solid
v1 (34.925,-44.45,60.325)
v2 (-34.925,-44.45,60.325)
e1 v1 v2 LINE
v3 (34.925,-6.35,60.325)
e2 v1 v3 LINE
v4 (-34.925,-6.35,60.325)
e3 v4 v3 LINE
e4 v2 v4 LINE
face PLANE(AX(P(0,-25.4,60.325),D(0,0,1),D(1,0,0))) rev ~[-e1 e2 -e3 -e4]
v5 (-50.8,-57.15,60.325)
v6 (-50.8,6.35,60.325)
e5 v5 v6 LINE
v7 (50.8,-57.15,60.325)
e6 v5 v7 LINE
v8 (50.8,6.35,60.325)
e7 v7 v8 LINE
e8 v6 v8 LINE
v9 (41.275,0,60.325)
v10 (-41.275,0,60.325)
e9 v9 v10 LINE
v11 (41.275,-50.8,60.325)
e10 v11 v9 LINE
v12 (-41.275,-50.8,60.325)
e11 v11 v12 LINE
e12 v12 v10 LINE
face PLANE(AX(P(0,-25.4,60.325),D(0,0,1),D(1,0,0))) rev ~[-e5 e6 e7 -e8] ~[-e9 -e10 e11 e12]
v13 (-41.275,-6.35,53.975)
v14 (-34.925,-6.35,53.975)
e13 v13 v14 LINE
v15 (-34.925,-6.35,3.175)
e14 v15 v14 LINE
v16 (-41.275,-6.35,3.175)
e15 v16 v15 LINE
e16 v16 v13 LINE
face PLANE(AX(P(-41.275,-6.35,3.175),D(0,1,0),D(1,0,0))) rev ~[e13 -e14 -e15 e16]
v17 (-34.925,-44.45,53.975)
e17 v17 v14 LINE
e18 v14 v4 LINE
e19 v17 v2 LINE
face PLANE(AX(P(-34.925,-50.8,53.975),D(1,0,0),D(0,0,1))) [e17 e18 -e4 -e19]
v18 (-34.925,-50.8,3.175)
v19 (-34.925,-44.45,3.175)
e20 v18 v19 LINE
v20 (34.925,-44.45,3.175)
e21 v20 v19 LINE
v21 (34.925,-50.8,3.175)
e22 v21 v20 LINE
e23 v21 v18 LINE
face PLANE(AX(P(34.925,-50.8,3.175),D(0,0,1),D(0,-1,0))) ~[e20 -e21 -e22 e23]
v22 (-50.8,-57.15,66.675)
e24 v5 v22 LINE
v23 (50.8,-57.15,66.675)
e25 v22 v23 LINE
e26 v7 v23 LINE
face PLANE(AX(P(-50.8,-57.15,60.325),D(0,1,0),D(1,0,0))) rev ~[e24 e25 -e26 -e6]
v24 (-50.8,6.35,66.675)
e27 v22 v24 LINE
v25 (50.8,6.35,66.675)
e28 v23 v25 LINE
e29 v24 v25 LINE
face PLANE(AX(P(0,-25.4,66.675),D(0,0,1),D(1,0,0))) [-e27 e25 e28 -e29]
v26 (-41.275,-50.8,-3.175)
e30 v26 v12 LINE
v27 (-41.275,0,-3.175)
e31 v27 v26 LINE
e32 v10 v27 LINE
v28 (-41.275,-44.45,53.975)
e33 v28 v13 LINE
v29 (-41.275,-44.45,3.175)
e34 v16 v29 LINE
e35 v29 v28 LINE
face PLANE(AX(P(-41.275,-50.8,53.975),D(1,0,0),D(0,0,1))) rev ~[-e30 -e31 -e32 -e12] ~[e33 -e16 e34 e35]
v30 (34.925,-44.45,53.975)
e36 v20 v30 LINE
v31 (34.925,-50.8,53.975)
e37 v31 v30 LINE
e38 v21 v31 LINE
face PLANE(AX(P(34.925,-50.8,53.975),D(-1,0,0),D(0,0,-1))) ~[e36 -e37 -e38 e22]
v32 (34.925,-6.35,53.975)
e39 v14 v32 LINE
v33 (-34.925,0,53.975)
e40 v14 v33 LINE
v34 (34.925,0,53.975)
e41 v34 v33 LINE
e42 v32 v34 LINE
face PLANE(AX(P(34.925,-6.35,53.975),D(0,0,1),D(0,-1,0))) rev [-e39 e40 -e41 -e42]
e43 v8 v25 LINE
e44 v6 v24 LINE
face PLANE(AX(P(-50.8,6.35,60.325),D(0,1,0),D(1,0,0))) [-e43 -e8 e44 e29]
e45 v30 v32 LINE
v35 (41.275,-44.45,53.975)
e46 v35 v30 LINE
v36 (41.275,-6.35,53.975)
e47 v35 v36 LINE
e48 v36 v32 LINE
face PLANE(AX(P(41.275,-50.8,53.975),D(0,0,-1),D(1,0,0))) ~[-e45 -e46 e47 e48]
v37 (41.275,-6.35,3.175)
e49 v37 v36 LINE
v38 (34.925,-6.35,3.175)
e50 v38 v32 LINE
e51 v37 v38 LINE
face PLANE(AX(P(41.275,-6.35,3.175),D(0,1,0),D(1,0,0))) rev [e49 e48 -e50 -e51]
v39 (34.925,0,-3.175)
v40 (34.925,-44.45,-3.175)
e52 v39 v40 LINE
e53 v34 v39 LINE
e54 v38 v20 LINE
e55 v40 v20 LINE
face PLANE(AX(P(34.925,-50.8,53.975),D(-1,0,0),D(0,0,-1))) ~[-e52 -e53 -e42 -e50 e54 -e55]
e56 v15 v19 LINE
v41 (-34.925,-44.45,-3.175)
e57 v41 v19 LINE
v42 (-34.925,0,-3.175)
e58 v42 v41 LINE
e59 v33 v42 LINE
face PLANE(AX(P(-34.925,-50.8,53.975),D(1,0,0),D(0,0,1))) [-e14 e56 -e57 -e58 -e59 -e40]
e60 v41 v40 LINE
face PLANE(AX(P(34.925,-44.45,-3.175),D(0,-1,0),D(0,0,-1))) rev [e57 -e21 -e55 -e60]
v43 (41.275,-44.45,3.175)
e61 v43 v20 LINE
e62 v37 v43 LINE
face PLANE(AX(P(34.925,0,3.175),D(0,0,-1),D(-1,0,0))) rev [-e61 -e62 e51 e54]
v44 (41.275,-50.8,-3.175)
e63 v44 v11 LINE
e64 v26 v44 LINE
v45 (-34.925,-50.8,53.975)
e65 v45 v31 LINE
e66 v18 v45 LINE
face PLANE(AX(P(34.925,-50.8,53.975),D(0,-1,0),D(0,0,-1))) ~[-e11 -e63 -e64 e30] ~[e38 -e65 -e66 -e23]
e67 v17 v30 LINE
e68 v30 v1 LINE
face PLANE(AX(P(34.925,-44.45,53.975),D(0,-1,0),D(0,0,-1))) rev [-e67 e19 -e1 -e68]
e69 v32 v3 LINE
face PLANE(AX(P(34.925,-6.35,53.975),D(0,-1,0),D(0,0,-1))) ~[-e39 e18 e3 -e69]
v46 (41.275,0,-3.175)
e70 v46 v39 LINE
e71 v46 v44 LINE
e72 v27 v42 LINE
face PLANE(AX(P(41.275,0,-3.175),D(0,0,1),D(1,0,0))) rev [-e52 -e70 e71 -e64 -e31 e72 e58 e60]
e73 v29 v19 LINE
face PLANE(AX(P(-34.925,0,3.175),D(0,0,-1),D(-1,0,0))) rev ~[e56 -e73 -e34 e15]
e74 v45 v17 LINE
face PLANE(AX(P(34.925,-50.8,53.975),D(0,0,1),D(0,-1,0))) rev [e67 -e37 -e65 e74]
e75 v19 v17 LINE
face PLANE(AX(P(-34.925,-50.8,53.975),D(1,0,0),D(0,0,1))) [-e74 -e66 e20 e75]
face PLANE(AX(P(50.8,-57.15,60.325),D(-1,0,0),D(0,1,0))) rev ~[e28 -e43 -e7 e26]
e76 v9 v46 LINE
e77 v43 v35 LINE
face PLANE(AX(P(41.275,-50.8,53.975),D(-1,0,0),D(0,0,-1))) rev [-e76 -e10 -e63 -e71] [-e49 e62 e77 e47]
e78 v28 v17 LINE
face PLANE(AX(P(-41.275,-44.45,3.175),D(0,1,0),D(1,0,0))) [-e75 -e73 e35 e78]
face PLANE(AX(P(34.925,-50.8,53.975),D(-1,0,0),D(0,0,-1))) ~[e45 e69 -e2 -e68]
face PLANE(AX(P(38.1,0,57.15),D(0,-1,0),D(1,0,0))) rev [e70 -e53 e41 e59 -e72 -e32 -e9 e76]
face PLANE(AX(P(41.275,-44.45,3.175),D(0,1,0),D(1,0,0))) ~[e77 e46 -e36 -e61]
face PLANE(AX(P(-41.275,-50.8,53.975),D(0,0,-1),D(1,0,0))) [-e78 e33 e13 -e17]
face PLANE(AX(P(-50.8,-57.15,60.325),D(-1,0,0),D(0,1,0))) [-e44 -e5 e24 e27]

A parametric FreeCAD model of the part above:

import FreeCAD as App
import Part
import Sketcher
Q = App.Units.Quantity


def add_polygon(sketch, points):
    """Adds a closed chain of lines whose ends are joined by coincident constraints."""
    first, n = sketch.GeometryCount, len(points)
    for a, b in zip(points, points[1:] + points[:1]):
        sketch.addGeometry(Part.LineSegment(App.Vector(*a, 0), App.Vector(*b, 0)), False)
    for i in range(n):
        sketch.addConstraint(Sketcher.Constraint("Coincident", first + i, 2, first + (i + 1) % n, 1))

doc = App.newDocument("Part")
params = doc.addObject("Spreadsheet::Sheet", "Params")
for row, (alias, value) in enumerate([
    ("sketch1_width", "0.25 in"),
    ("pad1_length", "2 in"),
    ("sketch2_width", "0.25 in"),
    ("pad2_length", "2 in"),
    ("sketch3_width", "0.25 in"),
    ("pad3_length", "2 in"),
    ("sketch4_width", "0.25 in"),
    ("pad4_length", "1.375 in"),
    ("sketch5_width", "4 in"),
    ("sketch5_height", "2.5 in"),
    ("pad5_length", "0.25 in"),
], start=1):
    params.set(f"A{row}", alias)
    params.set(f"B{row}", "=" + value)
    params.setAlias(f"B{row}", alias)

body = doc.addObject("PartDesign::Body", "Body")

sketch1 = doc.addObject("Sketcher::SketchObject", "Sketch")
body.addObject(sketch1)
sketch1.AttachmentSupport = (doc.XZ_Plane, [""])
sketch1.MapMode = "FlatFace"
add_polygon(sketch1, [(-41, -3), (-35, -3), (-35, 3), (-41, 3)])
sketch1.addConstraint(Sketcher.Constraint("Horizontal", 0))
sketch1.addConstraint(Sketcher.Constraint("Vertical", 1))
sketch1.addConstraint(Sketcher.Constraint("Horizontal", 2))
sketch1.addConstraint(Sketcher.Constraint("Vertical", 3))
sketch1.addConstraint(Sketcher.Constraint("Equal", 2, 1))
sketch1.addConstraint(Sketcher.Constraint("DistanceX", 0, 1, 0, 2, Q("0.25 in")))
sketch1.addConstraint(Sketcher.Constraint("DistanceX", 0, 2, -1, 1, Q("1.375 in")))
sketch1.addConstraint(Sketcher.Constraint("DistanceY", 0, 2, -1, 1, Q("0.125 in")))
sketch1.setExpression("Constraints[9]", "Params.sketch1_width")
pad1 = doc.addObject("PartDesign::Pad", "Pad")
body.addObject(pad1)
pad1.Profile = sketch1
pad1.setExpression("Length", "Params.pad1_length")

sketch2 = doc.addObject("Sketcher::SketchObject", "Sketch001")
body.addObject(sketch2)
sketch2.AttachmentSupport = (doc.XY_Plane, [""])
sketch2.MapMode = "FlatFace"
sketch2.AttachmentOffset = App.Placement(App.Vector(0, 0, 0.125 * 25.4), App.Rotation())
add_polygon(sketch2, [(-41, 0), (-41, -6), (-35, -6), (-35, 0)])
add_polygon(sketch2, [(-41, -44), (-41, -51), (-35, -51), (-35, -44)])
sketch2.addConstraint(Sketcher.Constraint("Vertical", 0))
sketch2.addConstraint(Sketcher.Constraint("Horizontal", 1))
sketch2.addConstraint(Sketcher.Constraint("Vertical", 2))
sketch2.addConstraint(Sketcher.Constraint("Horizontal", 3))
sketch2.addConstraint(Sketcher.Constraint("Vertical", 4))
sketch2.addConstraint(Sketcher.Constraint("Horizontal", 5))
sketch2.addConstraint(Sketcher.Constraint("Vertical", 6))
sketch2.addConstraint(Sketcher.Constraint("Horizontal", 7))
sketch2.addConstraint(Sketcher.Constraint("PointOnObject", 2, 2, -1))
sketch2.addConstraint(Sketcher.Constraint("Vertical", 3, 2, 4, 2))
sketch2.addConstraint(Sketcher.Constraint("Vertical", 2, 2, 5, 2))
sketch2.addConstraint(Sketcher.Constraint("Equal", 7, 0))
sketch2.addConstraint(Sketcher.Constraint("Equal", 2, 4))
sketch2.addConstraint(Sketcher.Constraint("DistanceY", 4, 2, -1, 1, Q("2 in")))
sketch2.addConstraint(Sketcher.Constraint("DistanceX", 1, 1, 1, 2, Q("0.25 in")))
sketch2.addConstraint(Sketcher.Constraint("DistanceX", 0, 2, -1, 1, Q("1.625 in")))
sketch2.setExpression("Constraints[22]", "Params.sketch2_width")
pad2 = doc.addObject("PartDesign::Pad", "Pad001")
body.addObject(pad2)
pad2.Profile = sketch2
pad2.setExpression("Length", "Params.pad2_length")

sketch3 = doc.addObject("Sketcher::SketchObject", "Sketch002")
body.addObject(sketch3)
sketch3.AttachmentSupport = (doc.XZ_Plane, [""])
sketch3.MapMode = "FlatFace"
sketch3.AttachmentOffset = App.Placement(App.Vector(0, 0, 2 * 25.4), App.Rotation())
add_polygon(sketch3, [(-41, 60), (-41, 54), (-35, 54), (-35, 60)])
sketch3.addConstraint(Sketcher.Constraint("Vertical", 0))
sketch3.addConstraint(Sketcher.Constraint("Horizontal", 1))
sketch3.addConstraint(Sketcher.Constraint("Vertical", 2))
sketch3.addConstraint(Sketcher.Constraint("Horizontal", 3))
sketch3.addConstraint(Sketcher.Constraint("Equal", 3, 0))
sketch3.addConstraint(Sketcher.Constraint("DistanceX", 1, 1, 1, 2, Q("0.25 in")))
sketch3.addConstraint(Sketcher.Constraint("DistanceX", 0, 2, -1, 1, Q("1.625 in")))
sketch3.addConstraint(Sketcher.Constraint("DistanceY", -1, 1, 0, 2, Q("2.125 in")))
sketch3.setExpression("Constraints[9]", "Params.sketch3_width")
pad3 = doc.addObject("PartDesign::Pad", "Pad002")
body.addObject(pad3)
pad3.Profile = sketch3
pad3.setExpression("Length", "Params.pad3_length")
pad3.Reversed = True

sketch4 = doc.addObject("Sketcher::SketchObject", "Sketch003")
body.addObject(sketch4)
sketch4.AttachmentSupport = (doc.YZ_Plane, [""])
sketch4.MapMode = "FlatFace"
sketch4.AttachmentOffset = App.Placement(App.Vector(0, 0, -1.375 * 25.4), App.Rotation())
add_polygon(sketch4, [(-51, 60), (-51, 54), (-44, 54), (-44, 60)])
add_polygon(sketch4, [(-6, 60), (-6, 54), (0, 54), (0, 60)])
add_polygon(sketch4, [(-51, 3), (-51, -3), (-44, -3), (-44, 3)])
sketch4.addConstraint(Sketcher.Constraint("Vertical", 0))
sketch4.addConstraint(Sketcher.Constraint("Horizontal", 1))
sketch4.addConstraint(Sketcher.Constraint("Vertical", 2))
sketch4.addConstraint(Sketcher.Constraint("Horizontal", 3))
sketch4.addConstraint(Sketcher.Constraint("Vertical", 4))
sketch4.addConstraint(Sketcher.Constraint("Horizontal", 5))
sketch4.addConstraint(Sketcher.Constraint("Vertical", 6))
sketch4.addConstraint(Sketcher.Constraint("Horizontal", 7))
sketch4.addConstraint(Sketcher.Constraint("Vertical", 8))
sketch4.addConstraint(Sketcher.Constraint("Horizontal", 9))
sketch4.addConstraint(Sketcher.Constraint("Vertical", 10))
sketch4.addConstraint(Sketcher.Constraint("Horizontal", 11))
sketch4.addConstraint(Sketcher.Constraint("PointOnObject", 5, 2, -2))
sketch4.addConstraint(Sketcher.Constraint("Horizontal", 1, 2, 4, 2))
sketch4.addConstraint(Sketcher.Constraint("Horizontal", 3, 2, 6, 2))
sketch4.addConstraint(Sketcher.Constraint("Vertical", 3, 2, 8, 2))
sketch4.addConstraint(Sketcher.Constraint("Vertical", 2, 2, 9, 2))
sketch4.addConstraint(Sketcher.Constraint("Equal", 3, 5))
sketch4.addConstraint(Sketcher.Constraint("Equal", 11, 0))
sketch4.addConstraint(Sketcher.Constraint("Equal", 6, 8))
sketch4.addConstraint(Sketcher.Constraint("DistanceX", 0, 2, -1, 1, Q("2 in")))
sketch4.addConstraint(Sketcher.Constraint("DistanceY", 10, 2, 1, 2, Q("2 in")))
sketch4.addConstraint(Sketcher.Constraint("DistanceX", 1, 1, 1, 2, Q("0.25 in")))
sketch4.addConstraint(Sketcher.Constraint("DistanceY", -1, 1, 0, 2, Q("2.125 in")))
sketch4.setExpression("Constraints[34]", "Params.sketch4_width")
pad4 = doc.addObject("PartDesign::Pad", "Pad003")
body.addObject(pad4)
pad4.Profile = sketch4
pad4.setExpression("Length", "Params.pad4_length")
body2 = doc.addObject("PartDesign::Body", "Body001")
doc.recompute()

body2.BaseFeature = body
doc.recompute()

mirroring = doc.addObject("Part::Mirroring", "Mirroring")
mirroring.Source = body
mirroring.Base = App.Vector(0, 0, 0)
mirroring.Normal = App.Vector(1, 0, 0)
body3 = doc.addObject("PartDesign::Body", "Body002")
body3.BaseFeature = mirroring
boolean = doc.addObject("PartDesign::Boolean", "Boolean")
body2.addObject(boolean)
boolean.Type = "Fuse"
boolean.addObjects([body3])
doc.recompute()

sketch5 = doc.addObject("Sketcher::SketchObject", "Sketch004")
body2.addObject(sketch5)
sketch5.AttachmentSupport = (doc.getObject("XY_Plane001"), [""])
sketch5.MapMode = "FlatFace"
sketch5.AttachmentOffset = App.Placement(App.Vector(0, 0, 2.375 * 25.4), App.Rotation())
add_polygon(sketch5, [(-51, 6), (-51, -57), (51, -57), (51, 6)])
sketch5.addConstraint(Sketcher.Constraint("Vertical", 0))
sketch5.addConstraint(Sketcher.Constraint("Horizontal", 1))
sketch5.addConstraint(Sketcher.Constraint("Vertical", 2))
sketch5.addConstraint(Sketcher.Constraint("Horizontal", 3))
sketch5.addConstraint(Sketcher.Constraint("DistanceX", 1, 1, 1, 2, Q("4 in")))
sketch5.addConstraint(Sketcher.Constraint("DistanceY", 0, 2, 0, 1, Q("2.5 in")))
sketch5.addConstraint(Sketcher.Constraint("DistanceX", 0, 2, -1, 1, Q("2 in")))
sketch5.addConstraint(Sketcher.Constraint("DistanceY", 0, 2, -1, 1, Q("2.25 in")))
sketch5.setExpression("Constraints[8]", "Params.sketch5_width")
sketch5.setExpression("Constraints[9]", "Params.sketch5_height")
pad5 = doc.addObject("PartDesign::Pad", "Pad004")
body2.addObject(pad5)
pad5.Profile = sketch5
pad5.setExpression("Length", "Params.pad5_length")
mirroring.Visibility = False

doc.recompute()
